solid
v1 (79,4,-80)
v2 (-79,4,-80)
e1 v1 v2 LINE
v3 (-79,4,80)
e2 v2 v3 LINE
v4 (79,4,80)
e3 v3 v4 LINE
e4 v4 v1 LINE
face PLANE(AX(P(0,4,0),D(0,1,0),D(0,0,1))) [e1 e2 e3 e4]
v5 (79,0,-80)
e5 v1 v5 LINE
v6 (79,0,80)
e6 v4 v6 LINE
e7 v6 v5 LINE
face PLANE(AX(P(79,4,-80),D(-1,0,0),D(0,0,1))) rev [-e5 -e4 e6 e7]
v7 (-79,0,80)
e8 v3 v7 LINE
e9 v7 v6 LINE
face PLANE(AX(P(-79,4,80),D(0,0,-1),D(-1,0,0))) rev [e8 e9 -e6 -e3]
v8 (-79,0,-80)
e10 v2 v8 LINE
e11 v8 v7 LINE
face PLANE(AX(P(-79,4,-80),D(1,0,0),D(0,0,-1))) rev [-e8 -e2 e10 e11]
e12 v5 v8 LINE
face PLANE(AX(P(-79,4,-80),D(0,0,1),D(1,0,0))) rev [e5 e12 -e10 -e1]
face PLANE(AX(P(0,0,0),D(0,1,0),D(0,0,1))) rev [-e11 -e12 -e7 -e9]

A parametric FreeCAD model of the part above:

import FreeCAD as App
import Part
import Sketcher
Q = App.Units.Quantity


def add_polygon(sketch, points):
    """Adds a closed chain of lines whose ends are joined by coincident constraints."""
    first, n = sketch.GeometryCount, len(points)
    for a, b in zip(points, points[1:] + points[:1]):
        sketch.addGeometry(Part.LineSegment(App.Vector(*a, 0), App.Vector(*b, 0)), False)
    for i in range(n):
        sketch.addConstraint(Sketcher.Constraint("Coincident", first + i, 2, first + (i + 1) % n, 1))

doc = App.newDocument("Part")
body = doc.addObject("PartDesign::Body", "Body")

# Sketch on XZ plane
sketch1 = doc.addObject("Sketcher::SketchObject", "Sketch")
body.addObject(sketch1)
sketch1.AttachmentSupport = (doc.XZ_Plane, [""])
sketch1.MapMode = "FlatFace"
add_polygon(sketch1, [(-79, -80), (-79, 80), (79, 80), (79, -80)])  # lines 0-3
sketch1.addConstraint([
    Sketcher.Constraint("Vertical", 0),
    Sketcher.Constraint("Horizontal", 1),
    Sketcher.Constraint("Vertical", 2),
    Sketcher.Constraint("Horizontal", 3),
    Sketcher.Constraint("Symmetric", 0, 2, 2, 2, -1, 1),
    Sketcher.Constraint("DistanceX", 1, 1, 1, 2, Q("158 mm")),
    Sketcher.Constraint("DistanceY", 0, 1, 0, 2, Q("160 mm")),
])
pad1 = doc.addObject("PartDesign::Pad", "Pad")
body.addObject(pad1)
pad1.Profile = sketch1
pad1.Length = 4
pad1.Reversed = True

doc.recompute()
